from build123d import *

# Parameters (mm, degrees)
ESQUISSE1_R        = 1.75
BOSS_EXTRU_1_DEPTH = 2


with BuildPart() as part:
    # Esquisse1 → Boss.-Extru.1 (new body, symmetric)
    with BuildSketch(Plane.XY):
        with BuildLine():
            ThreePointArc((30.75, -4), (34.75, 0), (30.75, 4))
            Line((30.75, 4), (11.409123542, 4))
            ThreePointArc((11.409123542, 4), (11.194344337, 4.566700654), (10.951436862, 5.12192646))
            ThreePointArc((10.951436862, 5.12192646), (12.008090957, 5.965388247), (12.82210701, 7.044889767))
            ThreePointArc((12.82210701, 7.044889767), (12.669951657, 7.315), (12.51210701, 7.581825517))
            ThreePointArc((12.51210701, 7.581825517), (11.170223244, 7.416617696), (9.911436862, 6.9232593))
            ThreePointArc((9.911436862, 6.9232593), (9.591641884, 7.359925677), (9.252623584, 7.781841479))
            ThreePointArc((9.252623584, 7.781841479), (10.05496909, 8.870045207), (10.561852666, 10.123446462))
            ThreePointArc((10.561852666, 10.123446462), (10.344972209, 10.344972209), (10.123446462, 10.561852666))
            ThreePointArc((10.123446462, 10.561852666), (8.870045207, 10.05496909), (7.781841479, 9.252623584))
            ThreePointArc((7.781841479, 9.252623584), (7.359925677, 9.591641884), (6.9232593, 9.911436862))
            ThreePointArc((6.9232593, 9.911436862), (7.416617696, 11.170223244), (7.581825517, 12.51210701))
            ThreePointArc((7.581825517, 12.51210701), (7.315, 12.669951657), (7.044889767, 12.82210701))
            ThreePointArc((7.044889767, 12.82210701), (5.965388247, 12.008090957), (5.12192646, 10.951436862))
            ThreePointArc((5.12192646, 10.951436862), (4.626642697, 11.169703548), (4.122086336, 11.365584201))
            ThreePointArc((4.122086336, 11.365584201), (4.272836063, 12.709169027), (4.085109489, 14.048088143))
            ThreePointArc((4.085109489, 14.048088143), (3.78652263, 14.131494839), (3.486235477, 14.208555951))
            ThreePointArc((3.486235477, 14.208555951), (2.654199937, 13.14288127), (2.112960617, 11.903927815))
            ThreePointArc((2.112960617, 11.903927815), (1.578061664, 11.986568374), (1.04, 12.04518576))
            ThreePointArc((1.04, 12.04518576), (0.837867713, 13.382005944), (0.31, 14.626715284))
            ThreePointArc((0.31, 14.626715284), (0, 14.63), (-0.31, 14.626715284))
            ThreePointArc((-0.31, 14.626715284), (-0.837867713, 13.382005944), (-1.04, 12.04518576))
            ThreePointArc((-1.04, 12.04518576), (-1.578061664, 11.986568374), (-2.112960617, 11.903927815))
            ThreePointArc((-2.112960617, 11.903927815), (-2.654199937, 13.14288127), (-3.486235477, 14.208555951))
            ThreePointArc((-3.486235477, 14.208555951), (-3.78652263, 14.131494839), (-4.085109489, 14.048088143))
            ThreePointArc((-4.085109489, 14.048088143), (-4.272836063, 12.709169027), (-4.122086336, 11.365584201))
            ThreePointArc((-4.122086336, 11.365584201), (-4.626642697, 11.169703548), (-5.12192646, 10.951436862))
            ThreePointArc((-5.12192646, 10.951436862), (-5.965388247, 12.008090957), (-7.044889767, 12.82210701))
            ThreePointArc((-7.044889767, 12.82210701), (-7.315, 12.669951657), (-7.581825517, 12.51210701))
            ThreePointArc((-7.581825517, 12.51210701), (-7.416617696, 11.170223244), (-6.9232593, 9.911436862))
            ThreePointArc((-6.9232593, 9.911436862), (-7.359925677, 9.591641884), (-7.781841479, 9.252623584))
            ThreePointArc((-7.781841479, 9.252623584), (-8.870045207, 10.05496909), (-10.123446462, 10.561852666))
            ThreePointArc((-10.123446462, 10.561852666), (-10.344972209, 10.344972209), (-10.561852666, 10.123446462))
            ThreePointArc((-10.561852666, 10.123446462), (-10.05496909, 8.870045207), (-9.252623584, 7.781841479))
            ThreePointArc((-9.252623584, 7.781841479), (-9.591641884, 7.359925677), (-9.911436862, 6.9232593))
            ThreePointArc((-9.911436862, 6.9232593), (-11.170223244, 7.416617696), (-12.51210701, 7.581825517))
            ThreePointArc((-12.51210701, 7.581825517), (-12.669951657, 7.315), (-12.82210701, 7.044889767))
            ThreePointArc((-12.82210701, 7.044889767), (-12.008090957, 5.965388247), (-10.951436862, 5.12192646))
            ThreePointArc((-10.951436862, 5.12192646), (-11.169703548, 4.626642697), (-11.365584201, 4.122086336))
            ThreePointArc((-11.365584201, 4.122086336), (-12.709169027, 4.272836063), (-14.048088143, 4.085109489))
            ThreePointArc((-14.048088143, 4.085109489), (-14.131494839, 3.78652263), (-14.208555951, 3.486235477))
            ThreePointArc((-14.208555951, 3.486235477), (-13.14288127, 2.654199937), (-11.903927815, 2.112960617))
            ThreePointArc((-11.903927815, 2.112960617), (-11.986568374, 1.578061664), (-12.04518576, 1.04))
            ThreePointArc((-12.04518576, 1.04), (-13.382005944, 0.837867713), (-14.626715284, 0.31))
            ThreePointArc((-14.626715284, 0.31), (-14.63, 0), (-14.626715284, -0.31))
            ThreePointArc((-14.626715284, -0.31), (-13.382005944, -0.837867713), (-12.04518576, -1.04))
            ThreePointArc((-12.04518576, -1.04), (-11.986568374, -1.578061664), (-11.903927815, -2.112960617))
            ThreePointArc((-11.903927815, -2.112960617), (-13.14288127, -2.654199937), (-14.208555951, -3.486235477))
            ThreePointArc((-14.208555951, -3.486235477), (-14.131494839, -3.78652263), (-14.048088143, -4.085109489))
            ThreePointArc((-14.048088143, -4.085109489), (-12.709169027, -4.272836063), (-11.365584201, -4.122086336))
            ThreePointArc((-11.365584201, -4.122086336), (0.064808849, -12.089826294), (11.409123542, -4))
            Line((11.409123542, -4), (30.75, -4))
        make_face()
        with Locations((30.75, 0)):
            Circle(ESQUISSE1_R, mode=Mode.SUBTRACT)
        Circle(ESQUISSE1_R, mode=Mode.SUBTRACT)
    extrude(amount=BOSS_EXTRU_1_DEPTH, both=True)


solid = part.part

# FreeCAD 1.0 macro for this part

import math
import FreeCAD as App
import Part
import Sketcher

V = App.Vector
Q = App.Units.Quantity

doc = App.newDocument("Part")
body = doc.addObject("PartDesign::Body", "Body")

sketch1 = body.newObject("Sketcher::SketchObject", "Sketch")
sketch1.AttachmentSupport = (doc.getObject("XY_Plane"), [""])
sketch1.MapMode = "FlatFace"
sketch1.addGeometry(Part.ArcOfCircle(Part.Circle(V(30.8, 0, 0), V(0, 0, 1), 4), math.radians(-90), math.radians(90)), False)
sketch1.addGeometry(Part.LineSegment(V(30.8, 4, 0), V(11.4, 4, 0)), False)
sketch1.addGeometry(Part.ArcOfCircle(Part.Circle(V(0, 0, 0), V(0, 0, 1), 12.1), math.radians(19.32), math.radians(25.07)), False)
sketch1.addGeometry(Part.ArcOfCircle(Part.Circle(V(8.1, 9.7, 0), V(0, 0, 1), 5.4), math.radians(-59), math.radians(-30)), False)
sketch1.addGeometry(Part.ArcOfCircle(Part.Circle(V(0, 0, 0), V(0, 0, 1), 14.6), math.radians(28.79), math.radians(31.21)), False)
sketch1.addGeometry(Part.ArcOfCircle(Part.Circle(V(12.5, 2.2, 0), V(0, 0, 1), 5.4), math.radians(90), math.radians(119)), False)
sketch1.addGeometry(Part.ArcOfCircle(Part.Circle(V(0, 0, 0), V(0, 0, 1), 12.1), math.radians(34.93), math.radians(40.07)), False)
sketch1.addGeometry(Part.ArcOfCircle(Part.Circle(V(5.3, 11.5, 0), V(0, 0, 1), 5.4), math.radians(-44), math.radians(-15)), False)
sketch1.addGeometry(Part.ArcOfCircle(Part.Circle(V(0, 0, 0), V(0, 0, 1), 14.6), math.radians(43.79), math.radians(46.21)), False)
sketch1.addGeometry(Part.ArcOfCircle(Part.Circle(V(11.5, 5.3, 0), V(0, 0, 1), 5.4), math.radians(105), math.radians(134)), False)
sketch1.addGeometry(Part.ArcOfCircle(Part.Circle(V(0, 0, 0), V(0, 0, 1), 12.1), math.radians(49.93), math.radians(55.07)), False)
sketch1.addGeometry(Part.ArcOfCircle(Part.Circle(V(2.2, 12.5, 0), V(0, 0, 1), 5.4), math.radians(-29), math.radians(0)), False)
sketch1.addGeometry(Part.ArcOfCircle(Part.Circle(V(0, 0, 0), V(0, 0, 1), 14.6), math.radians(58.79), math.radians(61.21)), False)
sketch1.addGeometry(Part.ArcOfCircle(Part.Circle(V(9.7, 8.1, 0), V(0, 0, 1), 5.4), math.radians(120), math.radians(149)), False)
sketch1.addGeometry(Part.ArcOfCircle(Part.Circle(V(0, 0, 0), V(0, 0, 1), 12.1), math.radians(64.93), math.radians(70.07)), False)
sketch1.addGeometry(Part.ArcOfCircle(Part.Circle(V(-1.1, 12.6, 0), V(0, 0, 1), 5.4), math.radians(-14), math.radians(15)), False)
sketch1.addGeometry(Part.ArcOfCircle(Part.Circle(V(0, 0, 0), V(0, 0, 1), 14.6), math.radians(73.79), math.radians(76.21)), False)
sketch1.addGeometry(Part.ArcOfCircle(Part.Circle(V(7.3, 10.4, 0), V(0, 0, 1), 5.4), math.radians(135), math.radians(164)), False)
sketch1.addGeometry(Part.ArcOfCircle(Part.Circle(V(0, 0, 0), V(0, 0, 1), 12.1), math.radians(79.93), math.radians(85.07)), False)
sketch1.addGeometry(Part.ArcOfCircle(Part.Circle(V(-4.4, 11.9, 0), V(0, 0, 1), 5.4), math.radians(1), math.radians(30)), False)
sketch1.addGeometry(Part.ArcOfCircle(Part.Circle(V(0, 0, 0), V(0, 0, 1), 14.6), math.radians(88.79), math.radians(91.21)), False)
sketch1.addGeometry(Part.ArcOfCircle(Part.Circle(V(4.4, 11.9, 0), V(0, 0, 1), 5.4), math.radians(150), math.radians(179)), False)
sketch1.addGeometry(Part.ArcOfCircle(Part.Circle(V(0, 0, 0), V(0, 0, 1), 12.1), math.radians(94.93), math.radians(100.07)), False)
sketch1.addGeometry(Part.ArcOfCircle(Part.Circle(V(-7.3, 10.4, 0), V(0, 0, 1), 5.4), math.radians(16), math.radians(45)), False)
sketch1.addGeometry(Part.ArcOfCircle(Part.Circle(V(0, 0, 0), V(0, 0, 1), 14.6), math.radians(103.79), math.radians(106.21)), False)
sketch1.addGeometry(Part.ArcOfCircle(Part.Circle(V(1.1, 12.6, 0), V(0, 0, 1), 5.4), math.radians(165), math.radians(194)), False)
sketch1.addGeometry(Part.ArcOfCircle(Part.Circle(V(0, 0, 0), V(0, 0, 1), 12.1), math.radians(109.93), math.radians(115.07)), False)
sketch1.addGeometry(Part.ArcOfCircle(Part.Circle(V(-9.7, 8.1, 0), V(0, 0, 1), 5.4), math.radians(31), math.radians(60)), False)
sketch1.addGeometry(Part.ArcOfCircle(Part.Circle(V(0, 0, 0), V(0, 0, 1), 14.6), math.radians(118.79), math.radians(121.21)), False)
sketch1.addGeometry(Part.ArcOfCircle(Part.Circle(V(-2.2, 12.5, 0), V(0, 0, 1), 5.4), math.radians(180), math.radians(209)), False)
sketch1.addGeometry(Part.ArcOfCircle(Part.Circle(V(0, 0, 0), V(0, 0, 1), 12.1), math.radians(124.93), math.radians(130.07)), False)
sketch1.addGeometry(Part.ArcOfCircle(Part.Circle(V(-11.5, 5.3, 0), V(0, 0, 1), 5.4), math.radians(46), math.radians(75)), False)
sketch1.addGeometry(Part.ArcOfCircle(Part.Circle(V(0, 0, 0), V(0, 0, 1), 14.6), math.radians(133.79), math.radians(136.21)), False)
sketch1.addGeometry(Part.ArcOfCircle(Part.Circle(V(-5.3, 11.5, 0), V(0, 0, 1), 5.4), math.radians(-165), math.radians(-136)), False)
sketch1.addGeometry(Part.ArcOfCircle(Part.Circle(V(0, 0, 0), V(0, 0, 1), 12.1), math.radians(139.93), math.radians(145.07)), False)
sketch1.addGeometry(Part.ArcOfCircle(Part.Circle(V(-12.5, 2.2, 0), V(0, 0, 1), 5.4), math.radians(61), math.radians(90)), False)
sketch1.addGeometry(Part.ArcOfCircle(Part.Circle(V(0, 0, 0), V(0, 0, 1), 14.6), math.radians(148.79), math.radians(151.21)), False)
sketch1.addGeometry(Part.ArcOfCircle(Part.Circle(V(-8.1, 9.7, 0), V(0, 0, 1), 5.4), math.radians(-150), math.radians(-121)), False)
sketch1.addGeometry(Part.ArcOfCircle(Part.Circle(V(0, 0, 0), V(0, 0, 1), 12.1), math.radians(154.93), math.radians(160.07)), False)
sketch1.addGeometry(Part.ArcOfCircle(Part.Circle(V(-12.6, -1.1, 0), V(0, 0, 1), 5.4), math.radians(76), math.radians(105)), False)
sketch1.addGeometry(Part.ArcOfCircle(Part.Circle(V(0, 0, 0), V(0, 0, 1), 14.6), math.radians(163.79), math.radians(166.21)), False)
sketch1.addGeometry(Part.ArcOfCircle(Part.Circle(V(-10.4, 7.3, 0), V(0, 0, 1), 5.4), math.radians(-135), math.radians(-106)), False)
sketch1.addGeometry(Part.ArcOfCircle(Part.Circle(V(0, 0, 0), V(0, 0, 1), 12.1), math.radians(169.93), math.radians(175.07)), False)
sketch1.addGeometry(Part.ArcOfCircle(Part.Circle(V(-11.9, -4.4, 0), V(0, 0, 1), 5.4), math.radians(91), math.radians(120)), False)
sketch1.addGeometry(Part.ArcOfCircle(Part.Circle(V(0, 0, 0), V(0, 0, 1), 14.6), math.radians(178.79), math.radians(181.21)), False)
sketch1.addGeometry(Part.ArcOfCircle(Part.Circle(V(-11.9, 4.4, 0), V(0, 0, 1), 5.4), math.radians(-120), math.radians(-91)), False)
sketch1.addGeometry(Part.ArcOfCircle(Part.Circle(V(0, 0, 0), V(0, 0, 1), 12.1), math.radians(-175.07), math.radians(-169.93)), False)
sketch1.addGeometry(Part.ArcOfCircle(Part.Circle(V(-10.4, -7.3, 0), V(0, 0, 1), 5.4), math.radians(106), math.radians(135)), False)
sketch1.addGeometry(Part.ArcOfCircle(Part.Circle(V(0, 0, 0), V(0, 0, 1), 14.6), math.radians(-166.21), math.radians(-163.79)), False)
sketch1.addGeometry(Part.ArcOfCircle(Part.Circle(V(-12.6, 1.1, 0), V(0, 0, 1), 5.4), math.radians(-105), math.radians(-76)), False)
sketch1.addGeometry(Part.ArcOfCircle(Part.Circle(V(0, 0, 0), V(0, 0, 1), 12.1), math.radians(-160), math.radians(-19)), False)
sketch1.addGeometry(Part.LineSegment(V(11.4, -4, 0), V(30.8, -4, 0)), False)
sketch1.addGeometry(Part.Circle(V(0, 0, 0), V(0, 0, 1), 1.8), False)
sketch1.addGeometry(Part.Circle(V(30.8, 0, 0), V(0, 0, 1), 1.8), False)
sketch1.addConstraint(Sketcher.Constraint("Tangent", 0, 2, 1, 1))
sketch1.addConstraint(Sketcher.Constraint("Coincident", 1, 2, 2, 1))
sketch1.addConstraint(Sketcher.Constraint("Coincident", 2, 2, 3, 1))
sketch1.addConstraint(Sketcher.Constraint("Coincident", 3, 2, 4, 1))
sketch1.addConstraint(Sketcher.Constraint("Coincident", 4, 2, 5, 1))
sketch1.addConstraint(Sketcher.Constraint("Coincident", 5, 2, 6, 1))
sketch1.addConstraint(Sketcher.Constraint("Coincident", 6, 2, 7, 1))
sketch1.addConstraint(Sketcher.Constraint("Coincident", 7, 2, 8, 1))
sketch1.addConstraint(Sketcher.Constraint("Coincident", 8, 2, 9, 1))
sketch1.addConstraint(Sketcher.Constraint("Coincident", 9, 2, 10, 1))
sketch1.addConstraint(Sketcher.Constraint("Coincident", 10, 2, 11, 1))
sketch1.addConstraint(Sketcher.Constraint("Coincident", 11, 2, 12, 1))
sketch1.addConstraint(Sketcher.Constraint("Coincident", 12, 2, 13, 1))
sketch1.addConstraint(Sketcher.Constraint("Coincident", 13, 2, 14, 1))
sketch1.addConstraint(Sketcher.Constraint("Coincident", 14, 2, 15, 1))
sketch1.addConstraint(Sketcher.Constraint("Coincident", 15, 2, 16, 1))
sketch1.addConstraint(Sketcher.Constraint("Coincident", 16, 2, 17, 1))
sketch1.addConstraint(Sketcher.Constraint("Coincident", 17, 2, 18, 1))
sketch1.addConstraint(Sketcher.Constraint("Coincident", 18, 2, 19, 1))
sketch1.addConstraint(Sketcher.Constraint("Coincident", 19, 2, 20, 1))
sketch1.addConstraint(Sketcher.Constraint("Coincident", 20, 2, 21, 1))
sketch1.addConstraint(Sketcher.Constraint("Coincident", 21, 2, 22, 1))
sketch1.addConstraint(Sketcher.Constraint("Coincident", 22, 2, 23, 1))
sketch1.addConstraint(Sketcher.Constraint("Coincident", 23, 2, 24, 1))
sketch1.addConstraint(Sketcher.Constraint("Coincident", 24, 2, 25, 1))
sketch1.addConstraint(Sketcher.Constraint("Coincident", 25, 2, 26, 1))
sketch1.addConstraint(Sketcher.Constraint("Coincident", 26, 2, 27, 1))
sketch1.addConstraint(Sketcher.Constraint("Coincident", 27, 2, 28, 1))
sketch1.addConstraint(Sketcher.Constraint("Coincident", 28, 2, 29, 1))
sketch1.addConstraint(Sketcher.Constraint("Coincident", 29, 2, 30, 1))
sketch1.addConstraint(Sketcher.Constraint("Coincident", 30, 2, 31, 1))
sketch1.addConstraint(Sketcher.Constraint("Coincident", 31, 2, 32, 1))
sketch1.addConstraint(Sketcher.Constraint("Coincident", 32, 2, 33, 1))
sketch1.addConstraint(Sketcher.Constraint("Coincident", 33, 2, 34, 1))
sketch1.addConstraint(Sketcher.Constraint("Coincident", 34, 2, 35, 1))
sketch1.addConstraint(Sketcher.Constraint("Coincident", 35, 2, 36, 1))
sketch1.addConstraint(Sketcher.Constraint("Coincident", 36, 2, 37, 1))
sketch1.addConstraint(Sketcher.Constraint("Coincident", 37, 2, 38, 1))
sketch1.addConstraint(Sketcher.Constraint("Coincident", 38, 2, 39, 1))
sketch1.addConstraint(Sketcher.Constraint("Coincident", 39, 2, 40, 1))
sketch1.addConstraint(Sketcher.Constraint("Coincident", 40, 2, 41, 1))
sketch1.addConstraint(Sketcher.Constraint("Coincident", 41, 2, 42, 1))
sketch1.addConstraint(Sketcher.Constraint("Coincident", 42, 2, 43, 1))
sketch1.addConstraint(Sketcher.Constraint("Coincident", 43, 2, 44, 1))
sketch1.addConstraint(Sketcher.Constraint("Coincident", 44, 2, 45, 1))
sketch1.addConstraint(Sketcher.Constraint("Coincident", 45, 2, 46, 1))
sketch1.addConstraint(Sketcher.Constraint("Coincident", 46, 2, 47, 1))
sketch1.addConstraint(Sketcher.Constraint("Coincident", 47, 2, 48, 1))
sketch1.addConstraint(Sketcher.Constraint("Coincident", 48, 2, 49, 1))
sketch1.addConstraint(Sketcher.Constraint("Coincident", 49, 2, 50, 1))
sketch1.addConstraint(Sketcher.Constraint("Coincident", 50, 2, 51, 1))
sketch1.addConstraint(Sketcher.Constraint("Tangent", 51, 2, 0, 1))
sketch1.addConstraint(Sketcher.Constraint("Horizontal", 1))
sketch1.addConstraint(Sketcher.Constraint("Horizontal", 51))
sketch1.addConstraint(Sketcher.Constraint("Coincident", 2, 3, -1, 1))
sketch1.addConstraint(Sketcher.Constraint("Coincident", 4, 3, -1, 1))
sketch1.addConstraint(Sketcher.Constraint("Coincident", 6, 3, -1, 1))
sketch1.addConstraint(Sketcher.Constraint("Coincident", 8, 3, -1, 1))
sketch1.addConstraint(Sketcher.Constraint("Coincident", 10, 3, -1, 1))
sketch1.addConstraint(Sketcher.Constraint("Coincident", 12, 3, -1, 1))
sketch1.addConstraint(Sketcher.Constraint("Coincident", 14, 3, -1, 1))
sketch1.addConstraint(Sketcher.Constraint("Coincident", 16, 3, -1, 1))
sketch1.addConstraint(Sketcher.Constraint("Coincident", 18, 3, -1, 1))
sketch1.addConstraint(Sketcher.Constraint("Coincident", 20, 3, -1, 1))
sketch1.addConstraint(Sketcher.Constraint("Coincident", 22, 3, -1, 1))
sketch1.addConstraint(Sketcher.Constraint("Coincident", 24, 3, -1, 1))
sketch1.addConstraint(Sketcher.Constraint("Coincident", 26, 3, -1, 1))
sketch1.addConstraint(Sketcher.Constraint("Coincident", 28, 3, -1, 1))
sketch1.addConstraint(Sketcher.Constraint("Coincident", 30, 3, -1, 1))
sketch1.addConstraint(Sketcher.Constraint("Coincident", 32, 3, -1, 1))
sketch1.addConstraint(Sketcher.Constraint("Coincident", 34, 3, -1, 1))
sketch1.addConstraint(Sketcher.Constraint("Coincident", 36, 3, -1, 1))
sketch1.addConstraint(Sketcher.Constraint("Coincident", 38, 3, -1, 1))
sketch1.addConstraint(Sketcher.Constraint("Coincident", 40, 3, -1, 1))
sketch1.addConstraint(Sketcher.Constraint("Coincident", 42, 3, -1, 1))
sketch1.addConstraint(Sketcher.Constraint("Coincident", 44, 3, -1, 1))
sketch1.addConstraint(Sketcher.Constraint("Coincident", 46, 3, -1, 1))
sketch1.addConstraint(Sketcher.Constraint("Coincident", 48, 3, -1, 1))
sketch1.addConstraint(Sketcher.Constraint("Coincident", 50, 3, -1, 1))
sketch1.addConstraint(Sketcher.Constraint("Coincident", 52, 3, -1, 1))
sketch1.addConstraint(Sketcher.Constraint("Coincident", 53, 3, 0, 3))
sketch1.addConstraint(Sketcher.Constraint("Equal", 3, 5))
sketch1.addConstraint(Sketcher.Constraint("Equal", 2, 6))
sketch1.addConstraint(Sketcher.Constraint("Equal", 5, 7))
sketch1.addConstraint(Sketcher.Constraint("Equal", 7, 9))
sketch1.addConstraint(Sketcher.Constraint("Equal", 6, 10))
sketch1.addConstraint(Sketcher.Constraint("Equal", 9, 11))
sketch1.addConstraint(Sketcher.Constraint("Equal", 4, 12))
sketch1.addConstraint(Sketcher.Constraint("Equal", 11, 13))
sketch1.addConstraint(Sketcher.Constraint("Equal", 10, 14))
sketch1.addConstraint(Sketcher.Constraint("Equal", 13, 15))
sketch1.addConstraint(Sketcher.Constraint("Equal", 12, 16))
sketch1.addConstraint(Sketcher.Constraint("Equal", 15, 17))
sketch1.addConstraint(Sketcher.Constraint("Equal", 14, 18))
sketch1.addConstraint(Sketcher.Constraint("Equal", 17, 19))
sketch1.addConstraint(Sketcher.Constraint("Equal", 16, 20))
sketch1.addConstraint(Sketcher.Constraint("Equal", 19, 21))
sketch1.addConstraint(Sketcher.Constraint("Equal", 18, 22))
sketch1.addConstraint(Sketcher.Constraint("Equal", 21, 23))
sketch1.addConstraint(Sketcher.Constraint("Equal", 20, 24))
sketch1.addConstraint(Sketcher.Constraint("Equal", 23, 25))
sketch1.addConstraint(Sketcher.Constraint("Equal", 22, 26))
sketch1.addConstraint(Sketcher.Constraint("Equal", 25, 27))
sketch1.addConstraint(Sketcher.Constraint("Equal", 24, 28))
sketch1.addConstraint(Sketcher.Constraint("Equal", 27, 29))
sketch1.addConstraint(Sketcher.Constraint("Equal", 26, 30))
sketch1.addConstraint(Sketcher.Constraint("Equal", 29, 31))
sketch1.addConstraint(Sketcher.Constraint("Equal", 24, 32))
sketch1.addConstraint(Sketcher.Constraint("Equal", 31, 33))
sketch1.addConstraint(Sketcher.Constraint("Equal", 30, 34))
sketch1.addConstraint(Sketcher.Constraint("Equal", 33, 35))
sketch1.addConstraint(Sketcher.Constraint("Equal", 28, 36))
sketch1.addConstraint(Sketcher.Constraint("Equal", 35, 37))
sketch1.addConstraint(Sketcher.Constraint("Equal", 34, 38))
sketch1.addConstraint(Sketcher.Constraint("Equal", 37, 39))
sketch1.addConstraint(Sketcher.Constraint("Equal", 36, 40))
sketch1.addConstraint(Sketcher.Constraint("Equal", 39, 41))
sketch1.addConstraint(Sketcher.Constraint("Equal", 38, 42))
sketch1.addConstraint(Sketcher.Constraint("Equal", 41, 43))
sketch1.addConstraint(Sketcher.Constraint("Equal", 40, 44))
sketch1.addConstraint(Sketcher.Constraint("Equal", 43, 45))
sketch1.addConstraint(Sketcher.Constraint("Equal", 42, 46))
sketch1.addConstraint(Sketcher.Constraint("Equal", 45, 47))
sketch1.addConstraint(Sketcher.Constraint("Equal", 44, 48))
sketch1.addConstraint(Sketcher.Constraint("Equal", 47, 49))
sketch1.addConstraint(Sketcher.Constraint("Equal", 46, 50))
sketch1.addConstraint(Sketcher.Constraint("Equal", 52, 53))
sketch1.addConstraint(Sketcher.Constraint("Symmetric", 19, 3, 21, 3, -2))
sketch1.addConstraint(Sketcher.Constraint("Symmetric", 17, 3, 23, 3, -2))
sketch1.addConstraint(Sketcher.Constraint("Symmetric", 15, 3, 25, 3, -2))
sketch1.addConstraint(Sketcher.Constraint("Symmetric", 13, 3, 27, 3, -2))
sketch1.addConstraint(Sketcher.Constraint("Symmetric", 11, 3, 29, 3, -2))
sketch1.addConstraint(Sketcher.Constraint("Symmetric", 9, 3, 31, 3, -2))
sketch1.addConstraint(Sketcher.Constraint("Symmetric", 7, 3, 33, 3, -2))
sketch1.addConstraint(Sketcher.Constraint("Symmetric", 5, 3, 35, 3, -2))
sketch1.addConstraint(Sketcher.Constraint("Symmetric", 3, 3, 37, 3, -2))
sketch1.addConstraint(Sketcher.Constraint("Symmetric", 43, 3, 45, 3, -1))
sketch1.addConstraint(Sketcher.Constraint("Symmetric", 41, 3, 47, 3, -1))
sketch1.addConstraint(Sketcher.Constraint("Symmetric", 39, 3, 49, 3, -1))
sketch1.addConstraint(Sketcher.Constraint("PointOnObject", 0, 3, -1))
sketch1.addConstraint(Sketcher.Constraint("Horizontal", 8, 2, 31, 2))
sketch1.addConstraint(Sketcher.Constraint("Radius", 0, Q("4 mm")))
sketch1.addConstraint(Sketcher.Constraint("Diameter", 52, Q("3.5 mm")))
sketch1.addConstraint(Sketcher.Constraint("Radius", 3, Q("5.4 mm")))
sketch1.addConstraint(Sketcher.Constraint("Radius", 2, Q("12.09 mm")))
sketch1.addConstraint(Sketcher.Constraint("Radius", 4, Q("14.630002 mm")))
sketch1.addConstraint(Sketcher.Constraint("DistanceX", -1, 1, 0, 3, Q("30.75 mm")))
sketch1.addConstraint(Sketcher.Constraint("DistanceX", -1, 1, 18, 2, Q("1.04 mm")))
sketch1.addConstraint(Sketcher.Constraint("DistanceX", -1, 1, 19, 2, Q("0.31 mm")))
sketch1.addConstraint(Sketcher.Constraint("DistanceY", -1, 1, 42, 2, Q("1.04 mm")))
sketch1.addConstraint(Sketcher.Constraint("DistanceY", -1, 1, 43, 2, Q("0.31 mm")))
sketch1.addConstraint(Sketcher.Constraint("DistanceX", -1, 1, 5, 3, Q("12.49582 mm")))
sketch1.addConstraint(Sketcher.Constraint("DistanceY", -1, 1, 5, 3, Q("2.18185 mm")))
sketch1.addConstraint(Sketcher.Constraint("DistanceX", -1, 1, 7, 3, Q("5.341662 mm")))
sketch1.addConstraint(Sketcher.Constraint("DistanceY", -1, 1, 7, 3, Q("11.505331 mm")))
sketch1.addConstraint(Sketcher.Constraint("DistanceX", -1, 1, 9, 3, Q("11.505331 mm")))
sketch1.addConstraint(Sketcher.Constraint("DistanceY", -1, 1, 9, 3, Q("5.341662 mm")))
sketch1.addConstraint(Sketcher.Constraint("DistanceX", -1, 1, 11, 3, Q("2.18185 mm")))
sketch1.addConstraint(Sketcher.Constraint("DistanceY", -1, 1, 11, 3, Q("12.49582 mm")))
sketch1.addConstraint(Sketcher.Constraint("DistanceX", 15, 3, -1, 1, Q("1.126651 mm")))
sketch1.addConstraint(Sketcher.Constraint("DistanceY", -1, 1, 15, 3, Q("12.63474 mm")))
sketch1.addConstraint(Sketcher.Constraint("DistanceX", -1, 1, 17, 3, Q("7.293078 mm")))
sketch1.addConstraint(Sketcher.Constraint("DistanceY", -1, 1, 17, 3, Q("10.37868 mm")))
sketch1.addConstraint(Sketcher.Constraint("DistanceX", 39, 3, -1, 1, Q("12.63474 mm")))
sketch1.addConstraint(Sketcher.Constraint("DistanceY", 39, 3, -1, 1, Q("1.126651 mm")))
sketch1.addConstraint(Sketcher.Constraint("DistanceX", 41, 3, -1, 1, Q("10.37868 mm")))
sketch1.addConstraint(Sketcher.Constraint("DistanceY", -1, 1, 41, 3, Q("7.293078 mm")))
sketch1.addConstraint(Sketcher.Constraint("DistanceY", -1, 1, 3, 2, Q("7.04489 mm")))
sketch1.addConstraint(Sketcher.Constraint("DistanceX", -1, 1, 12, 2, Q("7.04489 mm")))
sketch1.addConstraint(Sketcher.Constraint("DistanceX", -1, 1, 3, 3, Q("8.137448 mm")))
sketch1.addConstraint(Sketcher.Constraint("DistanceX", -1, 1, 13, 3, Q("9.730773 mm")))
pad1 = body.newObject("PartDesign::Pad", "Pad")
pad1.Profile = sketch1
pad1.Length = 4
pad1.Midplane = True

doc.recompute()
